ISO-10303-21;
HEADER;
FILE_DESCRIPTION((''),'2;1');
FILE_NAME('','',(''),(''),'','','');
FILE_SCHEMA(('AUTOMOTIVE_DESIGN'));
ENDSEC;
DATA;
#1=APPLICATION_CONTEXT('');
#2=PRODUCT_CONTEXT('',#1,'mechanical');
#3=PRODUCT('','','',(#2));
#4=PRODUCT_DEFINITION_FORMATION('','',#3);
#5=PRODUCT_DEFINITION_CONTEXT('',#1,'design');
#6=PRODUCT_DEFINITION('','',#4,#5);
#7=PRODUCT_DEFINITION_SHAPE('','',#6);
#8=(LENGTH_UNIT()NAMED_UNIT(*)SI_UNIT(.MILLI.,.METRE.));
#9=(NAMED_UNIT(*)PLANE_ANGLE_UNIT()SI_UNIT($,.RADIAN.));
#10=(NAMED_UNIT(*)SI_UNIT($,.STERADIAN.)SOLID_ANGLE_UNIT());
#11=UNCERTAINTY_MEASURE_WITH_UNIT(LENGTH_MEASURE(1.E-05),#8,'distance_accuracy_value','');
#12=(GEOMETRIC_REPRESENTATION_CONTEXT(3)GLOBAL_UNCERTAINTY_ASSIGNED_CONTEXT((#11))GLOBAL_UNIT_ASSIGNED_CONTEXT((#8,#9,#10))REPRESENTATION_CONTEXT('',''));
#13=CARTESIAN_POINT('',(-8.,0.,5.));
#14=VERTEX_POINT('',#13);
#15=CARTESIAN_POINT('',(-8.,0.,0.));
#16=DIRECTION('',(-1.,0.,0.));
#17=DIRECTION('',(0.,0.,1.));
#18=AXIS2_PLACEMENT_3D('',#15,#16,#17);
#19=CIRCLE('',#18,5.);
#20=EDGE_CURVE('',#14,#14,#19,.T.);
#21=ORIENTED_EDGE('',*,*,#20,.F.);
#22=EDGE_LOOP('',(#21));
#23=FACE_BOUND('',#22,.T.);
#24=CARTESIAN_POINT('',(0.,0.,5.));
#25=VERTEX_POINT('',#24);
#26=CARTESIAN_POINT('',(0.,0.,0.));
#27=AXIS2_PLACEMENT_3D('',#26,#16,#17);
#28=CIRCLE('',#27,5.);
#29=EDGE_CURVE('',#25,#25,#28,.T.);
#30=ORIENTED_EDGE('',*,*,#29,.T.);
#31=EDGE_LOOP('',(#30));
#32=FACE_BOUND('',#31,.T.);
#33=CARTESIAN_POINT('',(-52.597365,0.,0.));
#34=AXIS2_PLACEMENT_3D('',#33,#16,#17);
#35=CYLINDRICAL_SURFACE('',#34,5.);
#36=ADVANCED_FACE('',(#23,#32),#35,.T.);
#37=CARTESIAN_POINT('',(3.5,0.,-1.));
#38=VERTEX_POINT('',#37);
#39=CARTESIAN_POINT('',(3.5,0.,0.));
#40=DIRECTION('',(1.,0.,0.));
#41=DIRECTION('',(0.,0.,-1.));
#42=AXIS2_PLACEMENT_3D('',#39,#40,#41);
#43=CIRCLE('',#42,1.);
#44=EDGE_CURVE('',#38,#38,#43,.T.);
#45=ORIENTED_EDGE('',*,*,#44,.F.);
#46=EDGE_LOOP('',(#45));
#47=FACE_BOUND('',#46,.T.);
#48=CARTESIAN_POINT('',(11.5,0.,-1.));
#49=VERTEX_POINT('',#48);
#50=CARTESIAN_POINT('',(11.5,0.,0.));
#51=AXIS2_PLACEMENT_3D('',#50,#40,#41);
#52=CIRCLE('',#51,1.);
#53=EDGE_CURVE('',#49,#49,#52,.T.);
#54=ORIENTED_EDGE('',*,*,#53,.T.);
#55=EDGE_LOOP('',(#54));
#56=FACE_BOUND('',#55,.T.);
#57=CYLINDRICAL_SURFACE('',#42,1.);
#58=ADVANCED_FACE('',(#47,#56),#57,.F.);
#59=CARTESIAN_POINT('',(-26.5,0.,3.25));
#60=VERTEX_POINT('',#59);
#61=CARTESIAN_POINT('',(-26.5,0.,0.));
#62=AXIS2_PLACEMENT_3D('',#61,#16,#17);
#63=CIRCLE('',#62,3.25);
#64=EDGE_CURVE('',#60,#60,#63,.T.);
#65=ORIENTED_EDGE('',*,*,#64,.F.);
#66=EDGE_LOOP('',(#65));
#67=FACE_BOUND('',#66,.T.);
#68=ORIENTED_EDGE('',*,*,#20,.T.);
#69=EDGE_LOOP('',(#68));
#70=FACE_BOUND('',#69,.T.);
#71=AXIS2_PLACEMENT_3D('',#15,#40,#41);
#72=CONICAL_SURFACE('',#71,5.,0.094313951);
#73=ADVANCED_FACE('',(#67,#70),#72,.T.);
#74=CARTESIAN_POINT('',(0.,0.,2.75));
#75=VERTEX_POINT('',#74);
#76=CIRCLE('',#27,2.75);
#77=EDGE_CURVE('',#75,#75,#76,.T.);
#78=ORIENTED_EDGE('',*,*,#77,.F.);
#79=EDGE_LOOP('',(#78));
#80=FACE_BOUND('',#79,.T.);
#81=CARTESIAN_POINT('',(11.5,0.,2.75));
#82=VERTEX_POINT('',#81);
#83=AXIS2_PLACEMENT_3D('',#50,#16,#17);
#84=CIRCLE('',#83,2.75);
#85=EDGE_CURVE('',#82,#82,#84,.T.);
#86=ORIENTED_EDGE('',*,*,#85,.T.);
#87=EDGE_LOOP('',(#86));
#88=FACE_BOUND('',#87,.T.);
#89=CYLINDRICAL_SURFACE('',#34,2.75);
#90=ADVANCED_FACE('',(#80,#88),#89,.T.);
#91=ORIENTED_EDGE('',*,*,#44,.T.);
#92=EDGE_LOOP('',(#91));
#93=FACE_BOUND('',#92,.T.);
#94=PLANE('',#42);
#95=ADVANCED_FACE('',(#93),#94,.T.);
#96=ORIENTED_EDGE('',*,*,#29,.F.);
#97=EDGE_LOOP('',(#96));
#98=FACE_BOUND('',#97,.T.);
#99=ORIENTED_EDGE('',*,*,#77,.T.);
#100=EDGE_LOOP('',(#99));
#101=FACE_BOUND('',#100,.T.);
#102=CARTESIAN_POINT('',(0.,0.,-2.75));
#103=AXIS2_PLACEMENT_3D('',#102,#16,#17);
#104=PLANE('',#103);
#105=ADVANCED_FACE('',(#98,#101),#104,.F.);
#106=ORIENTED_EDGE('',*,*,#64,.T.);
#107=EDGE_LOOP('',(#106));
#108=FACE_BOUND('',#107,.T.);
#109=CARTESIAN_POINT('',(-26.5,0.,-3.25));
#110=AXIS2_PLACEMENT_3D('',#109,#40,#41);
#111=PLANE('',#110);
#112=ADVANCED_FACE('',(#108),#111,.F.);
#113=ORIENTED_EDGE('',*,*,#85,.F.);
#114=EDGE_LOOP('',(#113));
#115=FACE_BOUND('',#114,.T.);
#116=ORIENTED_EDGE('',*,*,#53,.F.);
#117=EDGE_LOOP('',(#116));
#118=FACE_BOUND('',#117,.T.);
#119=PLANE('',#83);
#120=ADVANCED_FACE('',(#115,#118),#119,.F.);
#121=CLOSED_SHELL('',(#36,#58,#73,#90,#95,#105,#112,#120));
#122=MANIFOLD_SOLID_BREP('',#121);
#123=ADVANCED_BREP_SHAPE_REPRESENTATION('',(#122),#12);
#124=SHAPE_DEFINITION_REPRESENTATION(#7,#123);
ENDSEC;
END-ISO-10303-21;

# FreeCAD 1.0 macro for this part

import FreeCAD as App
import Part
import Sketcher
Q = App.Units.Quantity

doc = App.newDocument("Part")
body = doc.addObject("PartDesign::Body", "Body")

# Sketch on XZ plane
sketch1 = body.newObject("Sketcher::SketchObject", "Sketch")
sketch1.AttachmentSupport = (doc.getObject("XZ_Plane"), [""])
sketch1.MapMode = "FlatFace"
sketch1.addGeometry([
    Part.LineSegment(App.Vector(11.5, 0, 0), App.Vector(11.5, -2.8, 0)),  # 0
    Part.LineSegment(App.Vector(11.5, -2.8, 0), App.Vector(0, -2.8, 0)),  # 1
    Part.LineSegment(App.Vector(0, -2.8, 0), App.Vector(0, -5, 0)),  # 2
    Part.LineSegment(App.Vector(0, -5, 0), App.Vector(-8, -5, 0)),  # 3
    Part.LineSegment(App.Vector(-8, -5, 0), App.Vector(-26.5, -3.2, 0)),  # 4
    Part.LineSegment(App.Vector(-26.5, -3.2, 0), App.Vector(-26.5, 0, 0)),  # 5
    Part.LineSegment(App.Vector(-26.5, 0, 0), App.Vector(11.5, 0, 0)),  # 6
], False)
sketch1.addConstraint([
    Sketcher.Constraint("Coincident", 0, 2, 1, 1),
    Sketcher.Constraint("Coincident", 1, 2, 2, 1),
    Sketcher.Constraint("Coincident", 2, 2, 3, 1),
    Sketcher.Constraint("Coincident", 3, 2, 4, 1),
    Sketcher.Constraint("Coincident", 4, 2, 5, 1),
    Sketcher.Constraint("Coincident", 5, 2, 6, 1),
    Sketcher.Constraint("Coincident", 6, 2, 0, 1),
    Sketcher.Constraint("Vertical", 0),
    Sketcher.Constraint("Horizontal", 1),
    Sketcher.Constraint("Vertical", 2),
    Sketcher.Constraint("Horizontal", 3),
    Sketcher.Constraint("Vertical", 5),
    Sketcher.Constraint("Horizontal", 6),
    Sketcher.Constraint("PointOnObject", 1, 2, -2),
    Sketcher.Constraint("PointOnObject", 5, 2, -1),
    Sketcher.Constraint("DistanceX", 3, 2, 3, 1, Q("8 mm")),
    Sketcher.Constraint("DistanceX", 6, 1, 6, 2, Q("38 mm")),
    Sketcher.Constraint("DistanceX", 1, 2, 1, 1, Q("11.5 mm")),
    Sketcher.Constraint("DistanceY", 2, 2, -1, 1, Q("5 mm")),
    Sketcher.Constraint("DistanceY", 0, 2, 0, 1, Q("2.75 mm")),
    Sketcher.Constraint("DistanceY", 5, 1, 5, 2, Q("3.25 mm")),
])
revolution = body.newObject("PartDesign::Revolution", "Revolution")
revolution.Profile = sketch1
revolution.ReferenceAxis = (sketch1, ["H_Axis"])
revolution.Angle = 360

# Sketch on YZ plane
sketch2 = body.newObject("Sketcher::SketchObject", "Sketch001")
sketch2.AttachmentSupport = (doc.getObject("YZ_Plane"), [""])
sketch2.MapMode = "FlatFace"
sketch2.AttachmentOffset = App.Placement(App.Vector(0, 0, 11.5), App.Rotation())
sketch2.addGeometry(Part.Circle(App.Vector(0, 0, 0), App.Vector(0, 0, 1), 1), False)
sketch2.addConstraint([
    Sketcher.Constraint("Coincident", 0, 3, -1, 1),
    Sketcher.Constraint("Diameter", 0, Q("2 mm")),
])
pocket1 = body.newObject("PartDesign::Pocket", "Pocket")
pocket1.Profile = sketch2
pocket1.Length = 8

doc.recompute()
